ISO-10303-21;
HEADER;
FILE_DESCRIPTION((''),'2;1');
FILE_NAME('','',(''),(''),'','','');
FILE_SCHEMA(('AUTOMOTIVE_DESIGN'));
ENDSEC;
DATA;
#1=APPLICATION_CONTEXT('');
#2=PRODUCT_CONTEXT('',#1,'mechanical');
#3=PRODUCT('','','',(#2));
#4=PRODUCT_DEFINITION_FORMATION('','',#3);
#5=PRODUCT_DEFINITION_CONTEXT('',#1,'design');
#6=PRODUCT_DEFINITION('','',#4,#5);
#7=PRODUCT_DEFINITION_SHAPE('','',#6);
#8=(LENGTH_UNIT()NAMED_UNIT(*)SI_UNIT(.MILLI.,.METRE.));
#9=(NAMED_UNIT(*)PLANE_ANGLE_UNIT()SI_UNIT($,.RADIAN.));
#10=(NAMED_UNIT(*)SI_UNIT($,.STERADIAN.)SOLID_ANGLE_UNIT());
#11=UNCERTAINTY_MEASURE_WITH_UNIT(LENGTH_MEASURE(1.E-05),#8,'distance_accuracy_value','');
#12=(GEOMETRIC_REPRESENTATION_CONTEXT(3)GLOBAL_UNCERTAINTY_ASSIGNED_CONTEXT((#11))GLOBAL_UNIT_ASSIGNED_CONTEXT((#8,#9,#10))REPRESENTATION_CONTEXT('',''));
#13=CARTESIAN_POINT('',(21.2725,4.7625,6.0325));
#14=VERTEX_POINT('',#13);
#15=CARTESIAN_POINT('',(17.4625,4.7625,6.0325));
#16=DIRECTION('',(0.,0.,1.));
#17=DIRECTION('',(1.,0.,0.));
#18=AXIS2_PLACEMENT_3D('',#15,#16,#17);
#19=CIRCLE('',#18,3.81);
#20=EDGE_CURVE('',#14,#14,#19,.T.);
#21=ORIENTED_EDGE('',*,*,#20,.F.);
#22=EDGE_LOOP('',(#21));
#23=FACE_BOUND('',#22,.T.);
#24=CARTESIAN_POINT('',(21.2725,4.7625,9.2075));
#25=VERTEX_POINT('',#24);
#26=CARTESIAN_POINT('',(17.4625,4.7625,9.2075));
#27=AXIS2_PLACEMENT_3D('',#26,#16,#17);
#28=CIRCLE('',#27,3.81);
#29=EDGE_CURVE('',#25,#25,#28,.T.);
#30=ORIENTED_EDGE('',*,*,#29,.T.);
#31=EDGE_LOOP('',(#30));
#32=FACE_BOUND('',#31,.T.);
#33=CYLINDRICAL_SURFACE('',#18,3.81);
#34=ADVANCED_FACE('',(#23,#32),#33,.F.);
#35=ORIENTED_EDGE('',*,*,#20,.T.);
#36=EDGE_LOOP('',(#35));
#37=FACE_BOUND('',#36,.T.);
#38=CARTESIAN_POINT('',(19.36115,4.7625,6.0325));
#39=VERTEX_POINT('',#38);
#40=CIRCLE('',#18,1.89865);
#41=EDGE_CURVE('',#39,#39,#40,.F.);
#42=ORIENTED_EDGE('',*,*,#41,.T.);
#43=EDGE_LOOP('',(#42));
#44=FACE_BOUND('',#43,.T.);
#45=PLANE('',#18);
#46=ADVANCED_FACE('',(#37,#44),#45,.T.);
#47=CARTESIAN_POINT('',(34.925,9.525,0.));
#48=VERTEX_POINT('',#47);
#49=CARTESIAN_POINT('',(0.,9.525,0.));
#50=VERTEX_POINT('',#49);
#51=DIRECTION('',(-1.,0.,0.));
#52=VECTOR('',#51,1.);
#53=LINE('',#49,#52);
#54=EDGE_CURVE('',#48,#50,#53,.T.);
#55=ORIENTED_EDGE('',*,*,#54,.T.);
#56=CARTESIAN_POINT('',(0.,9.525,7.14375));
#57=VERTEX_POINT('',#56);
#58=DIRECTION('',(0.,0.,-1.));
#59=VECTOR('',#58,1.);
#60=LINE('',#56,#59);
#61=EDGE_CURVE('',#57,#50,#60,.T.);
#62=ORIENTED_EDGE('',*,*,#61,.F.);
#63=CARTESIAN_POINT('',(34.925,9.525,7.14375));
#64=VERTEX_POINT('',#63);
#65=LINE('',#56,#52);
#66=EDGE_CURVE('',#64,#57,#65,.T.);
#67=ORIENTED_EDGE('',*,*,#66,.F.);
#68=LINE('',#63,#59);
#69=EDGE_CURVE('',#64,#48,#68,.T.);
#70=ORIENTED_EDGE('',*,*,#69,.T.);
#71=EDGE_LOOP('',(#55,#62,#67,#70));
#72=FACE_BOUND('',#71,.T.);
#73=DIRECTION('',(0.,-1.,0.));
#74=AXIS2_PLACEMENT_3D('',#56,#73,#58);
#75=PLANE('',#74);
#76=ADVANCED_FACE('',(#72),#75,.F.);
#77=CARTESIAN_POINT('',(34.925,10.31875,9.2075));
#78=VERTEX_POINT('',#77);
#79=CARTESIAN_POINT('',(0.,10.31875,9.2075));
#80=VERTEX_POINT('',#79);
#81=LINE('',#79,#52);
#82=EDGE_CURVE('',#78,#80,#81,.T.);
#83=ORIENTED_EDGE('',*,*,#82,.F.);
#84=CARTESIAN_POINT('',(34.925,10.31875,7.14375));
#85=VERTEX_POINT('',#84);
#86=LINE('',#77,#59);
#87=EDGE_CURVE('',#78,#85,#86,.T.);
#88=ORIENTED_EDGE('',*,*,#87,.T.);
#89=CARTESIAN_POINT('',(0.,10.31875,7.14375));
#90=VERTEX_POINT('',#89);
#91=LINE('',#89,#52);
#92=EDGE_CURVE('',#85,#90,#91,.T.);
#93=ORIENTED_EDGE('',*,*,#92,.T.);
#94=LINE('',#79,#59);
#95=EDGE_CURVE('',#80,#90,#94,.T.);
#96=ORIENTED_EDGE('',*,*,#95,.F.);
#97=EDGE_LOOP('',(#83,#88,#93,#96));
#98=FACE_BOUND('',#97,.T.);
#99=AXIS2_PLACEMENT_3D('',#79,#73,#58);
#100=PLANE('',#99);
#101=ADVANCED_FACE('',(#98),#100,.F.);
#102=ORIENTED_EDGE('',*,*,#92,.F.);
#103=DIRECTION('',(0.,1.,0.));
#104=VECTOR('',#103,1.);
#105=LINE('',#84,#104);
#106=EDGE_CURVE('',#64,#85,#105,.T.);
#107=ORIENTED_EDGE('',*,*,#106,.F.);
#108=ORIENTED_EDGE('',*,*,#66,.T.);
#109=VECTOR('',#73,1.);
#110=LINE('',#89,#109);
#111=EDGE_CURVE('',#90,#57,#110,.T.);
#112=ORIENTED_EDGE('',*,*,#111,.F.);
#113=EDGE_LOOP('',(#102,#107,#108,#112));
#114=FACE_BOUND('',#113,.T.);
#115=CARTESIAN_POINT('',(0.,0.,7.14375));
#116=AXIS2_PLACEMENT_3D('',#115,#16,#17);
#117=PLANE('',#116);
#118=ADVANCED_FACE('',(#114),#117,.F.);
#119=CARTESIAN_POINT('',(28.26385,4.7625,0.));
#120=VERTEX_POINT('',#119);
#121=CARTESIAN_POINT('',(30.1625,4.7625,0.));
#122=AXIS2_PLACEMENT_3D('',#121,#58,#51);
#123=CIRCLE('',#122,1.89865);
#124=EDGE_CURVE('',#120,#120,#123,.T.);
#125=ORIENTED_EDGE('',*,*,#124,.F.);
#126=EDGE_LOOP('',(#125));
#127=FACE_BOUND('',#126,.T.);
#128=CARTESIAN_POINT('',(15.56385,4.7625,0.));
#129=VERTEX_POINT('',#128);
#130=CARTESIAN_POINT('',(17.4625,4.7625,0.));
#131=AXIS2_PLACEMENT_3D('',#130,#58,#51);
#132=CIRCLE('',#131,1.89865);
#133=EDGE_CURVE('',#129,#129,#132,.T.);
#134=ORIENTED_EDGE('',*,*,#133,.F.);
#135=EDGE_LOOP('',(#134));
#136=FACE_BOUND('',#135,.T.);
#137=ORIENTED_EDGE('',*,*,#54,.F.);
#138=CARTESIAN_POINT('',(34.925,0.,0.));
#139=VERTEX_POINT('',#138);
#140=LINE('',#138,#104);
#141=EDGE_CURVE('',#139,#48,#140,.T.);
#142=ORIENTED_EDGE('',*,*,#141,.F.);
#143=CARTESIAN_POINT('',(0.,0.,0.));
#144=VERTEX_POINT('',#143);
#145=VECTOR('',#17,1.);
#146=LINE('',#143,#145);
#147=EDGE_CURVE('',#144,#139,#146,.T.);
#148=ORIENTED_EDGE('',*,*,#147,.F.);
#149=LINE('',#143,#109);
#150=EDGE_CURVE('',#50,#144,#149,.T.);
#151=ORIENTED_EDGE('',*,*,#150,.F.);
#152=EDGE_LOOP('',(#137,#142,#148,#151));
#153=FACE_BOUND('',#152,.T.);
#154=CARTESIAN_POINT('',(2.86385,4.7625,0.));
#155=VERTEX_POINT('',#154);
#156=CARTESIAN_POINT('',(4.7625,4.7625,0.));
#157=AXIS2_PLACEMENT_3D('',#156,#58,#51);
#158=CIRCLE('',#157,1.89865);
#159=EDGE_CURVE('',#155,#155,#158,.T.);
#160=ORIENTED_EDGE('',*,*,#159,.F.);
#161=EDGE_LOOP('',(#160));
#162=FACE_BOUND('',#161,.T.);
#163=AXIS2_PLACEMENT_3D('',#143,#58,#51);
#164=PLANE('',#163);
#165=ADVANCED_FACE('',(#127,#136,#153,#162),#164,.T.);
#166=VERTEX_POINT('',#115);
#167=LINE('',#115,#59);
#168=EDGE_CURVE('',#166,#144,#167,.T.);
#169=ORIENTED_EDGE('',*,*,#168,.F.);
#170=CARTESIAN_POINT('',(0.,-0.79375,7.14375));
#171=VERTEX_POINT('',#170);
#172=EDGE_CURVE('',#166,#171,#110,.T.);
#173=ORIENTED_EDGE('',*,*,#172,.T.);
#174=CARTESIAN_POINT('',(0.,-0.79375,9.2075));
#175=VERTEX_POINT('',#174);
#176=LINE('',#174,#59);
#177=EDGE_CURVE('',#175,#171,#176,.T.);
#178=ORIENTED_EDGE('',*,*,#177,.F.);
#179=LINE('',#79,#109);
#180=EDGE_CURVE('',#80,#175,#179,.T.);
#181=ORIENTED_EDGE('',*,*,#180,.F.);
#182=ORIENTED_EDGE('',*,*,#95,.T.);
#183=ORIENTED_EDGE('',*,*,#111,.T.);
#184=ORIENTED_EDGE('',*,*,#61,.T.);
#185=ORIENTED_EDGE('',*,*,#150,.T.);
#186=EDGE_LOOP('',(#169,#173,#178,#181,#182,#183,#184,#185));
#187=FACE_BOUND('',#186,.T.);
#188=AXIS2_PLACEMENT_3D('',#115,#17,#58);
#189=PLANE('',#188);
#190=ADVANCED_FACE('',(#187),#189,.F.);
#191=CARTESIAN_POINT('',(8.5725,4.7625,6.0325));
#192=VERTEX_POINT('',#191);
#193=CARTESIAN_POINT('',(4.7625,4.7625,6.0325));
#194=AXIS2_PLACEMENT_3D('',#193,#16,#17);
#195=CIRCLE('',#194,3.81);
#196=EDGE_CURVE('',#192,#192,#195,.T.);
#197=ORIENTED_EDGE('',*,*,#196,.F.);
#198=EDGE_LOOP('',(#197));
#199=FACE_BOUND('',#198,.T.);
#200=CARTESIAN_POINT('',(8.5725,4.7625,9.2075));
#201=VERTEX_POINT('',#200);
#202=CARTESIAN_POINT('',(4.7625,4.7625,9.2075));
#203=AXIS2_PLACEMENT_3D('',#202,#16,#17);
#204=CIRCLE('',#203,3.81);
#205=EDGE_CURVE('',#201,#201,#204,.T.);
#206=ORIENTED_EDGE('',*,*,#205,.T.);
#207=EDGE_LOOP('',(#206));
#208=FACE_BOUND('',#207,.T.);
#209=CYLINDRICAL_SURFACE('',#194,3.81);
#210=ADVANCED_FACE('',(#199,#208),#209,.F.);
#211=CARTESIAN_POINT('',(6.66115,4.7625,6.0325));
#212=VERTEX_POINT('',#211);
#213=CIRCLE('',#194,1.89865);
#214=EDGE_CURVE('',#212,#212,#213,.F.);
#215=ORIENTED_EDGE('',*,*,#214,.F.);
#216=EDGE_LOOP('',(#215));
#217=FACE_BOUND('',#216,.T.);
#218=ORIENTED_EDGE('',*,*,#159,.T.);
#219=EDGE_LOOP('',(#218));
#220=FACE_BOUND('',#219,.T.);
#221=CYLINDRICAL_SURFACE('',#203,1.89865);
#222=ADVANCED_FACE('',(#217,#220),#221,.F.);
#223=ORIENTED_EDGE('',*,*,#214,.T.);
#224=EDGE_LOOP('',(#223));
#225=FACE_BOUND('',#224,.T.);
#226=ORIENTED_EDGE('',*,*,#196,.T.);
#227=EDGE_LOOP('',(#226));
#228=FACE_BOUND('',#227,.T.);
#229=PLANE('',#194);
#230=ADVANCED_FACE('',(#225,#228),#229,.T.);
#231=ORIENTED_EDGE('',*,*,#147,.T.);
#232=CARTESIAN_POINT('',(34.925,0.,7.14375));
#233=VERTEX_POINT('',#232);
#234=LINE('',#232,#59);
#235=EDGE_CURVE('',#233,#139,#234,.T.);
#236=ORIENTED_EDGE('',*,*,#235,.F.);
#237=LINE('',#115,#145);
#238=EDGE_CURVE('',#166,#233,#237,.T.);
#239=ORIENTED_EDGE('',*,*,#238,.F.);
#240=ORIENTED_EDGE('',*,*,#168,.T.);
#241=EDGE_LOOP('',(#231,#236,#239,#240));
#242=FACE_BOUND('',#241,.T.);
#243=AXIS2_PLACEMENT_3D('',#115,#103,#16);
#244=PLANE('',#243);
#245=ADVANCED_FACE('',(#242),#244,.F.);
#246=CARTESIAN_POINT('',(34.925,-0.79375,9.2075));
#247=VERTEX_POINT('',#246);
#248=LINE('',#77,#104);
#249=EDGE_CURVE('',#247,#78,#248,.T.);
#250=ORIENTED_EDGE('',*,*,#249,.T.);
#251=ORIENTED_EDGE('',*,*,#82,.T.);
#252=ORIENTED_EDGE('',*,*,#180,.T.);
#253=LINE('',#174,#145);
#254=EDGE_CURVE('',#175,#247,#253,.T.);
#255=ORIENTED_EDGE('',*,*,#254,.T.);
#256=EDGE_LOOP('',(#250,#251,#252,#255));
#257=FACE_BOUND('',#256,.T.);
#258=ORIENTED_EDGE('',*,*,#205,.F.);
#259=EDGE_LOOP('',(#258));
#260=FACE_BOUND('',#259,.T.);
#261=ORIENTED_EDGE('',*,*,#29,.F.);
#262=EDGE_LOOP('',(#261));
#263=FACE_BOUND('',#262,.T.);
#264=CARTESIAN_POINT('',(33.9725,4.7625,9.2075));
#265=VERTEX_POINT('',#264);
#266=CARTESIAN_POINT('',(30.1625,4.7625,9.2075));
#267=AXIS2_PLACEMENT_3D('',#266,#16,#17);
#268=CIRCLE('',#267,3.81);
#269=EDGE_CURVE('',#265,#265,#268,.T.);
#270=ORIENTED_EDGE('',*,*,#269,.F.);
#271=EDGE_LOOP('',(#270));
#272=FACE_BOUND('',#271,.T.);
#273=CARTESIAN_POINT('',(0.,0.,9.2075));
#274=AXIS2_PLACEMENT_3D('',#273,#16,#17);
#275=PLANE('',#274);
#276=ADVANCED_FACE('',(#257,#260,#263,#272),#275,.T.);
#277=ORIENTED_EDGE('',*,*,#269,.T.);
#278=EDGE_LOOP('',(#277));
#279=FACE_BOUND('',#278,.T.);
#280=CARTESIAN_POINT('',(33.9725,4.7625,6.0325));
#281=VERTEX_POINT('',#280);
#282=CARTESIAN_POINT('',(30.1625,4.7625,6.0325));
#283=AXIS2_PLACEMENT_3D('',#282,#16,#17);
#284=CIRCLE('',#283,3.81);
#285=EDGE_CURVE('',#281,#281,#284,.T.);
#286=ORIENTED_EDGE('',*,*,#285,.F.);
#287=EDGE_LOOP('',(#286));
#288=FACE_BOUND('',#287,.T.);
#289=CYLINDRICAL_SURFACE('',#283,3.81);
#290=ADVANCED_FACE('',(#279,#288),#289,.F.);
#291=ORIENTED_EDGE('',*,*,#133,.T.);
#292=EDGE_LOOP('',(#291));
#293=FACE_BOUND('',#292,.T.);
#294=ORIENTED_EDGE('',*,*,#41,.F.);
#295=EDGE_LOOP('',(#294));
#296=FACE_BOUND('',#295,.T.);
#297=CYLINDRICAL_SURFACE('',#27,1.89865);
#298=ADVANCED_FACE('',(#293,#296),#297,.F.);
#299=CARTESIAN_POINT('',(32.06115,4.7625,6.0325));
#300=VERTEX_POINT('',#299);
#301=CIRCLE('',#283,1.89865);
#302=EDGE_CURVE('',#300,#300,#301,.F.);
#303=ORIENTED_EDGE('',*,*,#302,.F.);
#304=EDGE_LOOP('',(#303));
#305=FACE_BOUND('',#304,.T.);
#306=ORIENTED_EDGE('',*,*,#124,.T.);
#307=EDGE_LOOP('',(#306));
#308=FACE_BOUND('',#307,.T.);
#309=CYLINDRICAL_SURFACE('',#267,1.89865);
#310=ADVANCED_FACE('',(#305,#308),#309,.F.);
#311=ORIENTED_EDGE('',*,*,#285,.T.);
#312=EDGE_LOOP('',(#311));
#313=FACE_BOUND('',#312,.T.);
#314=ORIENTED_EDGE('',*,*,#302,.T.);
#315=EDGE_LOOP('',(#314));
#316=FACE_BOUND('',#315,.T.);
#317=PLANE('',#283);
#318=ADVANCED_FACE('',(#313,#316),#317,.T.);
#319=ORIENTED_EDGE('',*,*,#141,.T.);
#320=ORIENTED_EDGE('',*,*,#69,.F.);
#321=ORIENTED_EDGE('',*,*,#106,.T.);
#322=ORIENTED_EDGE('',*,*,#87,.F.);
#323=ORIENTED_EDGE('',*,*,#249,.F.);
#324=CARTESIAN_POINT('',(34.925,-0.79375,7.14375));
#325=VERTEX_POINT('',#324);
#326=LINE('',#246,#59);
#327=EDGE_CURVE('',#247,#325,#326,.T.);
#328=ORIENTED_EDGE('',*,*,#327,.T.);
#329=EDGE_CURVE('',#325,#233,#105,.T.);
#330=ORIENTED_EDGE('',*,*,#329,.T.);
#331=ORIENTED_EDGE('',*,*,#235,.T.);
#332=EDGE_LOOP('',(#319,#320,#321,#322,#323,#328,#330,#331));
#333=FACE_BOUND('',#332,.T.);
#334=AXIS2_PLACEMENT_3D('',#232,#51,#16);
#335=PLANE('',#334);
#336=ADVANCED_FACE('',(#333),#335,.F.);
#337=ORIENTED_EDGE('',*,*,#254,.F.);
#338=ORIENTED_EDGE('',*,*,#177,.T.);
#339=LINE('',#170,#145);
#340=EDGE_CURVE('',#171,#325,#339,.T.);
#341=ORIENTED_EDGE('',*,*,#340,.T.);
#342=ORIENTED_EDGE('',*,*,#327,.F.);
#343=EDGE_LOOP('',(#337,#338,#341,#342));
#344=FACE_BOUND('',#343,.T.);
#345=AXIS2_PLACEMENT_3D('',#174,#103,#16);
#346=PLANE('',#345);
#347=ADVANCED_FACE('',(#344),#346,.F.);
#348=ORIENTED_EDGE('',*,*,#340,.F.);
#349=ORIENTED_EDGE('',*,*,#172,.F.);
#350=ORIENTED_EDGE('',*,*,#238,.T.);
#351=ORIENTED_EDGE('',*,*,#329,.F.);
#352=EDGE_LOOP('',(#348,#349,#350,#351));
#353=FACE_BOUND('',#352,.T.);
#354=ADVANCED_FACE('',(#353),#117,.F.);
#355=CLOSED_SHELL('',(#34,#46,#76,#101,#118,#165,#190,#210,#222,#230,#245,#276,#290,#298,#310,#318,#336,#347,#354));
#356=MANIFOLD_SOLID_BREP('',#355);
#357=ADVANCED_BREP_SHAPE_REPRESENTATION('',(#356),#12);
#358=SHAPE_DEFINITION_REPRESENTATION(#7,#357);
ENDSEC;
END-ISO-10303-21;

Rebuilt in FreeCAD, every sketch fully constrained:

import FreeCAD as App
import Part
import Sketcher
from FreeCAD import Vector
Q = App.Units.Quantity

doc = App.newDocument("Part")
body = doc.addObject("PartDesign::Body", "Body")

sketch1 = body.newObject("Sketcher::SketchObject", "Sketch")
sketch1.AttachmentSupport = (doc.getObject("XY_Plane"), [""])
sketch1.MapMode = "FlatFace"
sketch1.addGeometry(Part.LineSegment(Vector(0, 10, 0), Vector(0, 0, 0)), False)
sketch1.addGeometry(Part.LineSegment(Vector(0, 0, 0), Vector(35, 0, 0)), False)
sketch1.addGeometry(Part.LineSegment(Vector(35, 0, 0), Vector(35, 10, 0)), False)
sketch1.addGeometry(Part.LineSegment(Vector(35, 10, 0), Vector(0, 10, 0)), False)
sketch1.addConstraint(Sketcher.Constraint("Coincident", 0, 2, 1, 1))
sketch1.addConstraint(Sketcher.Constraint("Coincident", 1, 2, 2, 1))
sketch1.addConstraint(Sketcher.Constraint("Coincident", 2, 2, 3, 1))
sketch1.addConstraint(Sketcher.Constraint("Coincident", 3, 2, 0, 1))
sketch1.addConstraint(Sketcher.Constraint("Vertical", 0))
sketch1.addConstraint(Sketcher.Constraint("Horizontal", 1))
sketch1.addConstraint(Sketcher.Constraint("Vertical", 2))
sketch1.addConstraint(Sketcher.Constraint("Horizontal", 3))
sketch1.addConstraint(Sketcher.Constraint("Coincident", 0, 2, -1, 1))
sketch1.addConstraint(Sketcher.Constraint("DistanceX", 1, 1, 1, 2, Q("1.375 in")))
sketch1.addConstraint(Sketcher.Constraint("DistanceY", 0, 2, 0, 1, Q("0.375 in")))
pad1 = body.newObject("PartDesign::Pad", "Pad")
pad1.Profile = sketch1
pad1.Length = Q("0.28125 in")

sketch2 = body.newObject("Sketcher::SketchObject", "Sketch001")
sketch2.AttachmentSupport = (doc.getObject("XY_Plane"), [""])
sketch2.MapMode = "FlatFace"
sketch2.AttachmentOffset = App.Placement(Vector(0, 0, 0.28125 * 25.4), App.Rotation())
sketch2.addGeometry(Part.LineSegment(Vector(0, 10, 0), Vector(0, -1, 0)), False)
sketch2.addGeometry(Part.LineSegment(Vector(0, -1, 0), Vector(35, -1, 0)), False)
sketch2.addGeometry(Part.LineSegment(Vector(35, -1, 0), Vector(35, 10, 0)), False)
sketch2.addGeometry(Part.LineSegment(Vector(35, 10, 0), Vector(0, 10, 0)), False)
sketch2.addConstraint(Sketcher.Constraint("Coincident", 0, 2, 1, 1))
sketch2.addConstraint(Sketcher.Constraint("Coincident", 1, 2, 2, 1))
sketch2.addConstraint(Sketcher.Constraint("Coincident", 2, 2, 3, 1))
sketch2.addConstraint(Sketcher.Constraint("Coincident", 3, 2, 0, 1))
sketch2.addConstraint(Sketcher.Constraint("Vertical", 0))
sketch2.addConstraint(Sketcher.Constraint("Horizontal", 1))
sketch2.addConstraint(Sketcher.Constraint("Vertical", 2))
sketch2.addConstraint(Sketcher.Constraint("Horizontal", 3))
sketch2.addConstraint(Sketcher.Constraint("PointOnObject", 0, 2, -2))
sketch2.addConstraint(Sketcher.Constraint("DistanceX", 1, 1, 1, 2, Q("1.375 in")))
sketch2.addConstraint(Sketcher.Constraint("DistanceY", 0, 2, 0, 1, Q("0.4375 in")))
sketch2.addConstraint(Sketcher.Constraint("DistanceY", 0, 2, -1, 1, Q("0.03125 in")))
pad2 = body.newObject("PartDesign::Pad", "Pad001")
pad2.Profile = sketch2
pad2.Length = 2.06375

sketch3 = body.newObject("Sketcher::SketchObject", "Sketch002")
sketch3.AttachmentSupport = (doc.getObject("XY_Plane"), [""])
sketch3.MapMode = "FlatFace"
sketch3.AttachmentOffset = App.Placement(Vector(0, 0, 0.3625 * 25.4), App.Rotation())
sketch3.addGeometry(Part.Circle(Vector(4.8, 4.8, 0), Vector(0, 0, 1), 1.9), False)
sketch3.addGeometry(Part.Circle(Vector(17.5, 4.8, 0), Vector(0, 0, 1), 1.9), False)
sketch3.addGeometry(Part.Circle(Vector(30.2, 4.8, 0), Vector(0, 0, 1), 1.9), False)
sketch3.addConstraint(Sketcher.Constraint("Equal", 0, 1))
sketch3.addConstraint(Sketcher.Constraint("Equal", 1, 2))
sketch3.addConstraint(Sketcher.Constraint("Horizontal", 0, 3, 1, 3))
sketch3.addConstraint(Sketcher.Constraint("Horizontal", 1, 3, 2, 3))
sketch3.addConstraint(Sketcher.Constraint("DistanceX", 0, 3, 2, 3, Q("1 in")))
sketch3.addConstraint(Sketcher.Constraint("Diameter", 0, Q("0.1495 in")))
sketch3.addConstraint(Sketcher.Constraint("DistanceX", 0, 3, 1, 3, Q("0.5 in")))
sketch3.addConstraint(Sketcher.Constraint("DistanceX", -1, 1, 0, 3, Q("0.1875 in")))
sketch3.addConstraint(Sketcher.Constraint("DistanceY", -1, 1, 0, 3, Q("0.1875 in")))
doc.recompute()
hole = body.newObject("PartDesign::Hole", "Hole")
hole.Profile = sketch3
hole.ThreadType = "None"
hole.Diameter = Q("0.1495 in")
hole.DepthType = "Dimension"
hole.Depth = Q("0.3625 in")
hole.DrillPoint = "Flat"

sketch4 = body.newObject("Sketcher::SketchObject", "Sketch003")
sketch4.AttachmentSupport = (doc.getObject("XY_Plane"), [""])
sketch4.MapMode = "FlatFace"
sketch4.AttachmentOffset = App.Placement(Vector(0, 0, 0.3625 * 25.4), App.Rotation())
sketch4.addGeometry(Part.Circle(Vector(4.8, 4.8, 0), Vector(0, 0, 1), 3.8), False)
sketch4.addGeometry(Part.Circle(Vector(17.5, 4.8, 0), Vector(0, 0, 1), 3.8), False)
sketch4.addGeometry(Part.Circle(Vector(30.2, 4.8, 0), Vector(0, 0, 1), 3.8), False)
sketch4.addConstraint(Sketcher.Constraint("Equal", 0, 1))
sketch4.addConstraint(Sketcher.Constraint("Equal", 1, 2))
sketch4.addConstraint(Sketcher.Constraint("Horizontal", 0, 3, 1, 3))
sketch4.addConstraint(Sketcher.Constraint("Horizontal", 1, 3, 2, 3))
sketch4.addConstraint(Sketcher.Constraint("Diameter", 0, Q("0.3 in")))
sketch4.addConstraint(Sketcher.Constraint("DistanceX", 0, 3, 2, 3, Q("1 in")))
sketch4.addConstraint(Sketcher.Constraint("DistanceX", 0, 3, 1, 3, Q("0.5 in")))
sketch4.addConstraint(Sketcher.Constraint("DistanceX", -1, 1, 0, 3, Q("0.1875 in")))
sketch4.addConstraint(Sketcher.Constraint("DistanceY", -1, 1, 0, 3, Q("0.1875 in")))
pocket1 = body.newObject("PartDesign::Pocket", "Pocket")
pocket1.Profile = sketch4
pocket1.Length = Q("0.125 in")

doc.recompute()
